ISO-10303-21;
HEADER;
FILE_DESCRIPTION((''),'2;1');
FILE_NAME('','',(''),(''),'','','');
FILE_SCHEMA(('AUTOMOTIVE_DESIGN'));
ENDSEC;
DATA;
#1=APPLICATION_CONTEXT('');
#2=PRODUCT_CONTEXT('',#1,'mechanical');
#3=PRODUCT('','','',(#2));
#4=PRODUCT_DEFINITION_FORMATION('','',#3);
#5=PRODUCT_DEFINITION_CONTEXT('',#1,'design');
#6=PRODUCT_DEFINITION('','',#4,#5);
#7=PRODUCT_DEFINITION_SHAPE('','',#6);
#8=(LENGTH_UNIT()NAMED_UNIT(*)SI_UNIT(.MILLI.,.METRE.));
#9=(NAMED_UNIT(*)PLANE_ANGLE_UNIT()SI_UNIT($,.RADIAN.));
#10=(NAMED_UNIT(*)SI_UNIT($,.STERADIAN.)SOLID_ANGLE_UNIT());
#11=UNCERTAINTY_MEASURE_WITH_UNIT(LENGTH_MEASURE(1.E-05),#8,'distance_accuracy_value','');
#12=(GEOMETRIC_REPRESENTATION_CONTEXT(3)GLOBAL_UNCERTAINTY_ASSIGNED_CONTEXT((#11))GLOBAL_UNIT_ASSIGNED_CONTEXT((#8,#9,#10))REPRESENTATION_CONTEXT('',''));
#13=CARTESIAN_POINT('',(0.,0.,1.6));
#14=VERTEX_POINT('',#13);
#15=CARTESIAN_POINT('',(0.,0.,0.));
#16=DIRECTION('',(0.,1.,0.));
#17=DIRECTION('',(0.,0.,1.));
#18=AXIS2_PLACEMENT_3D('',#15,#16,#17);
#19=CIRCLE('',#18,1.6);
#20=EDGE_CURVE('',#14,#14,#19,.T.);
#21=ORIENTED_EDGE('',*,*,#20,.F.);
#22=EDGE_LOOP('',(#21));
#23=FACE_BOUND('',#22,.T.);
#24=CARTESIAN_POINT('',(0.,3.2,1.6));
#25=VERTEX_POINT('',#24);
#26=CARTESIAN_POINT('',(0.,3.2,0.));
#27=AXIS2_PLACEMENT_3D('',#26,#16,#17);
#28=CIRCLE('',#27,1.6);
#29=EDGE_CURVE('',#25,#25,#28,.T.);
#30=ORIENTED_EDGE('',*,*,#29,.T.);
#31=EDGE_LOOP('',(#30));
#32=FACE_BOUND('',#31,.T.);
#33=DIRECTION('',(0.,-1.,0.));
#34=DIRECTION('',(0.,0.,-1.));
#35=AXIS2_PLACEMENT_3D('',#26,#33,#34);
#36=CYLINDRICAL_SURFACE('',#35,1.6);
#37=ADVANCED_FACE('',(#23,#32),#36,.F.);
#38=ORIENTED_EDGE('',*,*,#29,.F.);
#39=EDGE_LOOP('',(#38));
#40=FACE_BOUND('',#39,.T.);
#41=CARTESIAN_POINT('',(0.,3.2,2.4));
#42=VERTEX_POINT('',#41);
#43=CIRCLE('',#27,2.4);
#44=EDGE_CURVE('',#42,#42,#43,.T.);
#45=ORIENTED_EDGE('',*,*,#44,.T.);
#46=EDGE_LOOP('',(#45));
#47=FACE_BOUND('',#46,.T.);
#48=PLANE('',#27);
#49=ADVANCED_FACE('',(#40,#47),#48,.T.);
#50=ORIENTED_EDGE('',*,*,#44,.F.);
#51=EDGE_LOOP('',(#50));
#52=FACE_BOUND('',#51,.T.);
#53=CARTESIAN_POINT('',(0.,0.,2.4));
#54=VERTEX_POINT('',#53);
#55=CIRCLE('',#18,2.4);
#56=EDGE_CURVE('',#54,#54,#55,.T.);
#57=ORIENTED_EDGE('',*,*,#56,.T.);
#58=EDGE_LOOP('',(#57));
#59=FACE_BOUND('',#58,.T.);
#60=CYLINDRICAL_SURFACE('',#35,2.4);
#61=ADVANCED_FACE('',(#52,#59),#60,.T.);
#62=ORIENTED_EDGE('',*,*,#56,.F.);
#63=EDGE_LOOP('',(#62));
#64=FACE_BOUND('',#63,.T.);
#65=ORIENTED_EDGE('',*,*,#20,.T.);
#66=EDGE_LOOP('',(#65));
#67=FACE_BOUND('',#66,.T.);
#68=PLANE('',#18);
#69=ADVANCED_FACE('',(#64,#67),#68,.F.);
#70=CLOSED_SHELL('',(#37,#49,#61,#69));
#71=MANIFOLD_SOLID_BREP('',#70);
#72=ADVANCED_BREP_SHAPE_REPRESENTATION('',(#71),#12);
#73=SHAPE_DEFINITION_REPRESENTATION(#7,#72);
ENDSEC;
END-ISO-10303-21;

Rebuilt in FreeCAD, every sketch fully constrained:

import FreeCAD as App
import Part
import Sketcher
from FreeCAD import Vector

doc = App.newDocument("Part")
body = doc.addObject("PartDesign::Body", "Body")

# Sketch on XZ plane
sketch1 = doc.addObject("Sketcher::SketchObject", "Sketch")
body.addObject(sketch1)
sketch1.AttachmentSupport = (doc.XZ_Plane, [""])
sketch1.MapMode = "FlatFace"
sketch1.addGeometry([
    Part.Circle(Vector(0, 0, 0), Vector(0, 0, 1), 2.4),
    Part.Circle(Vector(0, 0, 0), Vector(0, 0, 1), 1.6),
], False)
sketch1.addConstraint([
    Sketcher.Constraint("Coincident", 0, 3, -1, 1),
    Sketcher.Constraint("Coincident", 1, 3, -1, 1),
    Sketcher.Constraint("Diameter", 0, 4.8),
    Sketcher.Constraint("Diameter", 1, 3.2),
])
pad1 = doc.addObject("PartDesign::Pad", "Pad")
body.addObject(pad1)
pad1.Profile = sketch1
pad1.Length = 3.2
pad1.Reversed = True

doc.recompute()
